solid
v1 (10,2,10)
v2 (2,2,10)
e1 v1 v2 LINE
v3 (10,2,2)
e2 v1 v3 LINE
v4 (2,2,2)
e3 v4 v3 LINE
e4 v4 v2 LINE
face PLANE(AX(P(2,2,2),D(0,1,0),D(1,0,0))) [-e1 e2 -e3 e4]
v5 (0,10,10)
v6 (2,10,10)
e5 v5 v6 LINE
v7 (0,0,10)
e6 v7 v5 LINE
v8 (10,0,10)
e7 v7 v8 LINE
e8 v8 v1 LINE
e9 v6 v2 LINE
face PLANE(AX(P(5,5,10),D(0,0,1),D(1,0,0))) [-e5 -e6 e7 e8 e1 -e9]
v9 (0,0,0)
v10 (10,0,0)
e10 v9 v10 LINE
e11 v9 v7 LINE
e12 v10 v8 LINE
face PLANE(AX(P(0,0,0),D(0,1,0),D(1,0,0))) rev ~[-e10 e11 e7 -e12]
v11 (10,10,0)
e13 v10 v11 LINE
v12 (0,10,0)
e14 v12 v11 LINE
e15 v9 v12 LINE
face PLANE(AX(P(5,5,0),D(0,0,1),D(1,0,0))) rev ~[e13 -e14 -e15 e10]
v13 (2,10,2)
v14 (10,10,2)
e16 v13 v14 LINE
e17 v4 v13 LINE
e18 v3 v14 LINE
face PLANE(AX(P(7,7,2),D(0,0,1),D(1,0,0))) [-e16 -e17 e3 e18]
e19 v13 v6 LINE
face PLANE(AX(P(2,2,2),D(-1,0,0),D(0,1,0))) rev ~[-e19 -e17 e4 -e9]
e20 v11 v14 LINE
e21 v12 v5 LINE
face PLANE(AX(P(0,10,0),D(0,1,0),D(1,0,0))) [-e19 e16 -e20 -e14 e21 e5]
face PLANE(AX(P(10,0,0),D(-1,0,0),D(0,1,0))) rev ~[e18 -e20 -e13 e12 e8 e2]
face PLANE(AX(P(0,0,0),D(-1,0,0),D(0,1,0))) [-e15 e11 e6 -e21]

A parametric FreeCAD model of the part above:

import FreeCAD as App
import Part
import Sketcher

V = App.Vector


def add_polygon(sketch, points):
    """Adds a closed chain of lines whose ends are joined by coincident constraints."""
    first, n = sketch.GeometryCount, len(points)
    for a, b in zip(points, points[1:] + points[:1]):
        sketch.addGeometry(Part.LineSegment(App.Vector(*a, 0), App.Vector(*b, 0)), False)
    for i in range(n):
        sketch.addConstraint(Sketcher.Constraint("Coincident", first + i, 2, first + (i + 1) % n, 1))

doc = App.newDocument("Part")
body = doc.addObject("PartDesign::Body", "Body")

# Sketch on XY plane
sketch1 = body.newObject("Sketcher::SketchObject", "Sketch")
sketch1.AttachmentSupport = (doc.getObject("XY_Plane"), [""])
sketch1.MapMode = "FlatFace"
sketch1.AttachmentOffset = App.Placement(V(0, 0, 2), App.Rotation())
add_polygon(sketch1, [(2, 12), (2, 2), (12, 2), (12, 12)])  # lines 0-3
sketch1.addConstraint([
    Sketcher.Constraint("Vertical", 0),
    Sketcher.Constraint("Horizontal", 1),
    Sketcher.Constraint("Vertical", 2),
    Sketcher.Constraint("Horizontal", 3),
    Sketcher.Constraint("Equal", 3, 0),
    Sketcher.Constraint("DistanceX", 1, 1, 1, 2, 10.0),
    Sketcher.Constraint("DistanceX", -1, 1, 0, 2, 2.0),
    Sketcher.Constraint("DistanceY", -1, 1, 0, 2, 2.0),
])
pad1 = body.newObject("PartDesign::Pad", "Pad")
pad1.Profile = sketch1
pad1.Length = 10
body2 = doc.addObject("PartDesign::Body", "Body001")

# Sketch on XY plane
sketch2 = body2.newObject("Sketcher::SketchObject", "Sketch001")
sketch2.AttachmentSupport = (doc.getObject("XY_Plane001"), [""])
sketch2.MapMode = "FlatFace"
add_polygon(sketch2, [(0, 10), (0, 0), (10, 0), (10, 10)])  # lines 0-3
sketch2.addConstraint([
    Sketcher.Constraint("Vertical", 0),
    Sketcher.Constraint("Horizontal", 1),
    Sketcher.Constraint("Vertical", 2),
    Sketcher.Constraint("Horizontal", 3),
    Sketcher.Constraint("Coincident", 0, 2, -1, 1),
    Sketcher.Constraint("Equal", 3, 0),
    Sketcher.Constraint("DistanceX", 1, 1, 1, 2, 10.0),
])
pad2 = body2.newObject("PartDesign::Pad", "Pad001")
pad2.Profile = sketch2
pad2.Length = 10
doc.recompute()

boolean = body2.newObject("PartDesign::Boolean", "Boolean")
boolean.Type = "Cut"
boolean.addObjects([body])

doc.recompute()
